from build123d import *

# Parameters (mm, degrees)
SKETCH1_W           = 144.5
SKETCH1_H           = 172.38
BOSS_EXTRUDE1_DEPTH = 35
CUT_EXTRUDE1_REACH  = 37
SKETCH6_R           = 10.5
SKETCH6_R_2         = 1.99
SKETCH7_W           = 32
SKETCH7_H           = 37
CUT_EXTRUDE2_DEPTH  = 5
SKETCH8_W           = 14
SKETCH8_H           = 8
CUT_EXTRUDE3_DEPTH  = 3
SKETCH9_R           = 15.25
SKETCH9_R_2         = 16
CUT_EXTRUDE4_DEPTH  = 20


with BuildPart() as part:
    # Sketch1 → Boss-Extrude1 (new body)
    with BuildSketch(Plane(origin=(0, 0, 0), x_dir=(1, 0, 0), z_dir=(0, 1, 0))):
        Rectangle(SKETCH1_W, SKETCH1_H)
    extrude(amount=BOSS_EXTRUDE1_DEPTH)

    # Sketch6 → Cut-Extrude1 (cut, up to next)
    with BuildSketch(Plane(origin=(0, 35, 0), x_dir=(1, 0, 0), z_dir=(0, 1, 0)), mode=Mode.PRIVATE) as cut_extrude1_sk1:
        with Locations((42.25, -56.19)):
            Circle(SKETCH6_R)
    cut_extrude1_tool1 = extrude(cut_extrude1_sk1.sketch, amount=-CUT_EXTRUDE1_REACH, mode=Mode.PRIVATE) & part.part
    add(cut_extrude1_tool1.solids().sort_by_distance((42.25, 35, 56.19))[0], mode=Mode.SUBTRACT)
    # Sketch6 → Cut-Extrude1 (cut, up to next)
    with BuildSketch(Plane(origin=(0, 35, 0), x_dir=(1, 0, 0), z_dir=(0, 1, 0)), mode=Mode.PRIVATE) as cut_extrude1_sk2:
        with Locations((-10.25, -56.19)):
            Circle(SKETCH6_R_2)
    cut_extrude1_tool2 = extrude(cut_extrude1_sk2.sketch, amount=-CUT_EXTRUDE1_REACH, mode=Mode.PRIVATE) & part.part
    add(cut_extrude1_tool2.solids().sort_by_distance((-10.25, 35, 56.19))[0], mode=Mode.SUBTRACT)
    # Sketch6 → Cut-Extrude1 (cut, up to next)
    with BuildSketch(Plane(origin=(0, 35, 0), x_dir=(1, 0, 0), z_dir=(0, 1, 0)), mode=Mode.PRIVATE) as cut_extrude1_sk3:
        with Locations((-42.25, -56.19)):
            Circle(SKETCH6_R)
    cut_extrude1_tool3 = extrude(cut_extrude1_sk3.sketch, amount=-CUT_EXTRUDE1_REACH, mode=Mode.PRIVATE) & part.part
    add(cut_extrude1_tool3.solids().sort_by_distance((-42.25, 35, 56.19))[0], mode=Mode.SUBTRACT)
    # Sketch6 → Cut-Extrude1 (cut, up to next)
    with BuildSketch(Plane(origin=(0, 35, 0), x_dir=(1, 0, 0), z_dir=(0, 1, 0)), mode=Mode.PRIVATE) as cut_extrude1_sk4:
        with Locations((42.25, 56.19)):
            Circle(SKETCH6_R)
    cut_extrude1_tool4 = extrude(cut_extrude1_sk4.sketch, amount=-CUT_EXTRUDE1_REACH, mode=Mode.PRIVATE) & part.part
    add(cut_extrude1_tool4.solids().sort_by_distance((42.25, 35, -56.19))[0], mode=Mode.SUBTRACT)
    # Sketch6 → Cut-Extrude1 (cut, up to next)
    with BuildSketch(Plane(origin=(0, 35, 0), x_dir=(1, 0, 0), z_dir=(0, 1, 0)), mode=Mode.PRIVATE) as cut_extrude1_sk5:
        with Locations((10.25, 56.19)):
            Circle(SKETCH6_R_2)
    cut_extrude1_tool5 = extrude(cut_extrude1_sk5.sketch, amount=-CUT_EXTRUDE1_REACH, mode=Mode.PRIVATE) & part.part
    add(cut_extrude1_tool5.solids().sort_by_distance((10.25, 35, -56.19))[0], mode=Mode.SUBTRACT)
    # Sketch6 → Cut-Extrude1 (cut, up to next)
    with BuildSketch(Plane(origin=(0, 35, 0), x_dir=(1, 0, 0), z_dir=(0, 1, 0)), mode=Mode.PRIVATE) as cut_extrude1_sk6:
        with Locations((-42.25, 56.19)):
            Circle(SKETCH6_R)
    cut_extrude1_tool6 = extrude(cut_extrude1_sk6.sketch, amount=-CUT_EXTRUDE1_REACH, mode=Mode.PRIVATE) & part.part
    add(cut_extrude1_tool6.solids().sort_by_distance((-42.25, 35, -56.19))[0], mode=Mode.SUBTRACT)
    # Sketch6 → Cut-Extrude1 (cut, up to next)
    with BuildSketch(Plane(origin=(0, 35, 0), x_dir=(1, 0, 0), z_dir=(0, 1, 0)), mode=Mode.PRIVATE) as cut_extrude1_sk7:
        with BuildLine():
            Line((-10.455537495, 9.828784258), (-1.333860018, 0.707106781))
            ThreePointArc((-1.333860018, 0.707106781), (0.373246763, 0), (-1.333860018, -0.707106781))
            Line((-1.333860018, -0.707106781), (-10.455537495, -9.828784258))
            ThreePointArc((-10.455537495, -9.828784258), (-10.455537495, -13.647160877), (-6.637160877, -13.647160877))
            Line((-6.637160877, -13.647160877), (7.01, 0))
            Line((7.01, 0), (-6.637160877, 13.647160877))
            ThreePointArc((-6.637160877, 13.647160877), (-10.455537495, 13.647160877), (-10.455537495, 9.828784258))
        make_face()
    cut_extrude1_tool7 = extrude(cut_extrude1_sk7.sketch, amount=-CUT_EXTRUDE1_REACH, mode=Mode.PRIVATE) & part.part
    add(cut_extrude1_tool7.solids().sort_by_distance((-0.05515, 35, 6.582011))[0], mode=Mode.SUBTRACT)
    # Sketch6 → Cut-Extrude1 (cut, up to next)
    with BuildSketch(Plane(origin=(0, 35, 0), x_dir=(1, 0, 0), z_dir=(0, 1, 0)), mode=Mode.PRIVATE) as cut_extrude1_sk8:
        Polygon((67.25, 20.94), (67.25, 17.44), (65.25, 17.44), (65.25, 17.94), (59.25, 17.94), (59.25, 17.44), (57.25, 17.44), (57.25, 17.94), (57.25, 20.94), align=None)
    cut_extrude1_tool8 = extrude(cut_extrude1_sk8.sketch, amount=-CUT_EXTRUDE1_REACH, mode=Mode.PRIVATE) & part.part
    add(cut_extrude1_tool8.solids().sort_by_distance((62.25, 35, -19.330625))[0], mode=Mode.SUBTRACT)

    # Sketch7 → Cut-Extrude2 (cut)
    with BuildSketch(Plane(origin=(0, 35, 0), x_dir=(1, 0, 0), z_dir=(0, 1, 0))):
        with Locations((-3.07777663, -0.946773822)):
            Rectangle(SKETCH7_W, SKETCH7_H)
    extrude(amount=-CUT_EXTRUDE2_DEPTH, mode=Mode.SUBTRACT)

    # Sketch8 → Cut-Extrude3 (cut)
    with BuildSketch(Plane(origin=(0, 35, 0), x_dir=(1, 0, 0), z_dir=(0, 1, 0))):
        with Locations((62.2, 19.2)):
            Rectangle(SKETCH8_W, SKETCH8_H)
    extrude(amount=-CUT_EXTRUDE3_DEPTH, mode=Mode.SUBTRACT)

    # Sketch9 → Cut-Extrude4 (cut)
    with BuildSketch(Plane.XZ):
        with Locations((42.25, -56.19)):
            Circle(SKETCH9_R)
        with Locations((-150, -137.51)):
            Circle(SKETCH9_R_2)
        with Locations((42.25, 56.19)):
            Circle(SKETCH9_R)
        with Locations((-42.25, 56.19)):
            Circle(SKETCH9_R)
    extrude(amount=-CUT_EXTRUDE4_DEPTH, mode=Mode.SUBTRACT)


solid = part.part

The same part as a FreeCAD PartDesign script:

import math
import FreeCAD as App
import Part
import Sketcher

doc = App.newDocument("Part")
params = doc.addObject("Spreadsheet::Sheet", "Params")
for row, (alias, value) in enumerate([
    ("sketch1_width", "144.5 mm"),
    ("sketch1_height", "172.38 mm"),
    ("pad1_length", "35 mm"),
    ("sketch2_diameter", "21 mm"),
    ("sketch3_diameter", "3.98 mm"),
    ("sketch4_diameter", "21 mm"),
    ("sketch5_diameter", "21 mm"),
    ("sketch6_diameter", "3.98 mm"),
    ("sketch7_diameter", "21 mm"),
    ("sketch8_radius", "1 mm"),
    ("sketch8_radius2", "2.7 mm"),
    ("sketch8_length", "12.9 mm"),
    ("sketch8_length2", "19.3 mm"),
    ("sketch9_width", "10 mm"),
    ("sketch9_width2", "2 mm"),
    ("sketch9_height", "3.5 mm"),
    ("sketch9_height2", "0.5 mm"),
    ("sketch10_width", "32 mm"),
    ("sketch10_height", "37 mm"),
    ("pocket9_length", "5 mm"),
    ("sketch11_width", "14 mm"),
    ("sketch11_height", "8 mm"),
    ("pocket10_length", "3 mm"),
    ("sketch12_diameter", "32 mm"),
    ("sketch12_diameter2", "30.5 mm"),
    ("pocket11_length", "20 mm"),
], start=1):
    params.set(f"A{row}", alias)
    params.set(f"B{row}", "=" + value)
    params.setAlias(f"B{row}", alias)

body = doc.addObject("PartDesign::Body", "Body")

# Sketch on XZ plane
sketch1 = doc.addObject("Sketcher::SketchObject", "Sketch")
body.addObject(sketch1)
sketch1.AttachmentSupport = (doc.XZ_Plane, [""])
sketch1.MapMode = "FlatFace"
sketch1.addGeometry([
    Part.LineSegment(App.Vector(-72.25, -86.19, 0), App.Vector(-72.25, 86.19, 0)),
    Part.LineSegment(App.Vector(-72.25, 86.19, 0), App.Vector(72.25, 86.19, 0)),
    Part.LineSegment(App.Vector(72.25, 86.19, 0), App.Vector(72.25, -86.19, 0)),
    Part.LineSegment(App.Vector(72.25, -86.19, 0), App.Vector(-72.25, -86.19, 0)),
], False)
sketch1.addConstraint([
    Sketcher.Constraint("Coincident", 0, 2, 1, 1),
    Sketcher.Constraint("Coincident", 1, 2, 2, 1),
    Sketcher.Constraint("Coincident", 2, 2, 3, 1),
    Sketcher.Constraint("Coincident", 3, 2, 0, 1),
    Sketcher.Constraint("Vertical", 0),
    Sketcher.Constraint("Horizontal", 1),
    Sketcher.Constraint("Vertical", 2),
    Sketcher.Constraint("Horizontal", 3),
    Sketcher.Constraint("Symmetric", 0, 2, 2, 2, -1, 1),
    Sketcher.Constraint("DistanceX", 1, 1, 1, 2, 144.5),
    Sketcher.Constraint("DistanceY", 0, 1, 0, 2, 172.38),
])
sketch1.setExpression("Constraints[9]", "Params.sketch1_width")
sketch1.setExpression("Constraints[10]", "Params.sketch1_height")
pad1 = doc.addObject("PartDesign::Pad", "Pad")
body.addObject(pad1)
pad1.Profile = sketch1
pad1.setExpression("Length", "Params.pad1_length")
pad1.Reversed = True

# Sketch on XZ plane
sketch2 = doc.addObject("Sketcher::SketchObject", "Sketch001")
body.addObject(sketch2)
sketch2.AttachmentSupport = (doc.XZ_Plane, [""])
sketch2.MapMode = "FlatFace"
sketch2.AttachmentOffset = App.Placement(App.Vector(0, 0, -35), App.Rotation())
sketch2.addGeometry(Part.Circle(App.Vector(42.25, 56.19, 0), App.Vector(0, 0, 1), 10.5), False)
sketch2.addConstraint([
    Sketcher.Constraint("Diameter", 0, 21.0),
    Sketcher.Constraint("DistanceX", -1, 1, 0, 3, 42.25),
    Sketcher.Constraint("DistanceY", -1, 1, 0, 3, 56.19),
])
sketch2.setExpression("Constraints[0]", "Params.sketch2_diameter")
pocket1 = doc.addObject("PartDesign::Pocket", "Pocket")
body.addObject(pocket1)
pocket1.Profile = sketch2
pocket1.Type = "UpToFirst"
pocket1.Reversed = True

# Sketch on XZ plane
sketch3 = doc.addObject("Sketcher::SketchObject", "Sketch002")
body.addObject(sketch3)
sketch3.AttachmentSupport = (doc.XZ_Plane, [""])
sketch3.MapMode = "FlatFace"
sketch3.AttachmentOffset = App.Placement(App.Vector(0, 0, -35), App.Rotation())
sketch3.addGeometry(Part.Circle(App.Vector(-10.25, 56.19, 0), App.Vector(0, 0, 1), 1.99), False)
sketch3.addConstraint([
    Sketcher.Constraint("Diameter", 0, 3.98),
    Sketcher.Constraint("DistanceX", 0, 3, -1, 1, 10.25),
    Sketcher.Constraint("DistanceY", -1, 1, 0, 3, 56.19),
])
sketch3.setExpression("Constraints[0]", "Params.sketch3_diameter")
pocket2 = doc.addObject("PartDesign::Pocket", "Pocket001")
body.addObject(pocket2)
pocket2.Profile = sketch3
pocket2.Type = "UpToFirst"
pocket2.Reversed = True

# Sketch on XZ plane
sketch4 = doc.addObject("Sketcher::SketchObject", "Sketch003")
body.addObject(sketch4)
sketch4.AttachmentSupport = (doc.XZ_Plane, [""])
sketch4.MapMode = "FlatFace"
sketch4.AttachmentOffset = App.Placement(App.Vector(0, 0, -35), App.Rotation())
sketch4.addGeometry(Part.Circle(App.Vector(-42.25, 56.19, 0), App.Vector(0, 0, 1), 10.5), False)
sketch4.addConstraint([
    Sketcher.Constraint("Diameter", 0, 21.0),
    Sketcher.Constraint("DistanceX", 0, 3, -1, 1, 42.25),
    Sketcher.Constraint("DistanceY", -1, 1, 0, 3, 56.19),
])
sketch4.setExpression("Constraints[0]", "Params.sketch4_diameter")
pocket3 = doc.addObject("PartDesign::Pocket", "Pocket002")
body.addObject(pocket3)
pocket3.Profile = sketch4
pocket3.Type = "UpToFirst"
pocket3.Reversed = True

# Sketch on XZ plane
sketch5 = doc.addObject("Sketcher::SketchObject", "Sketch004")
body.addObject(sketch5)
sketch5.AttachmentSupport = (doc.XZ_Plane, [""])
sketch5.MapMode = "FlatFace"
sketch5.AttachmentOffset = App.Placement(App.Vector(0, 0, -35), App.Rotation())
sketch5.addGeometry(Part.Circle(App.Vector(42.25, -56.19, 0), App.Vector(0, 0, 1), 10.5), False)
sketch5.addConstraint([
    Sketcher.Constraint("Diameter", 0, 21.0),
    Sketcher.Constraint("DistanceX", -1, 1, 0, 3, 42.25),
    Sketcher.Constraint("DistanceY", 0, 3, -1, 1, 56.19),
])
sketch5.setExpression("Constraints[0]", "Params.sketch5_diameter")
pocket4 = doc.addObject("PartDesign::Pocket", "Pocket003")
body.addObject(pocket4)
pocket4.Profile = sketch5
pocket4.Type = "UpToFirst"
pocket4.Reversed = True

# Sketch on XZ plane
sketch6 = doc.addObject("Sketcher::SketchObject", "Sketch005")
body.addObject(sketch6)
sketch6.AttachmentSupport = (doc.XZ_Plane, [""])
sketch6.MapMode = "FlatFace"
sketch6.AttachmentOffset = App.Placement(App.Vector(0, 0, -35), App.Rotation())
sketch6.addGeometry(Part.Circle(App.Vector(10.25, -56.19, 0), App.Vector(0, 0, 1), 1.99), False)
sketch6.addConstraint([
    Sketcher.Constraint("Diameter", 0, 3.98),
    Sketcher.Constraint("DistanceX", -1, 1, 0, 3, 10.25),
    Sketcher.Constraint("DistanceY", 0, 3, -1, 1, 56.19),
])
sketch6.setExpression("Constraints[0]", "Params.sketch6_diameter")
pocket5 = doc.addObject("PartDesign::Pocket", "Pocket004")
body.addObject(pocket5)
pocket5.Profile = sketch6
pocket5.Type = "UpToFirst"
pocket5.Reversed = True

# Sketch on XZ plane
sketch7 = doc.addObject("Sketcher::SketchObject", "Sketch006")
body.addObject(sketch7)
sketch7.AttachmentSupport = (doc.XZ_Plane, [""])
sketch7.MapMode = "FlatFace"
sketch7.AttachmentOffset = App.Placement(App.Vector(0, 0, -35), App.Rotation())
sketch7.addGeometry(Part.Circle(App.Vector(-42.25, -56.19, 0), App.Vector(0, 0, 1), 10.5), False)
sketch7.addConstraint([
    Sketcher.Constraint("Diameter", 0, 21.0),
    Sketcher.Constraint("DistanceX", 0, 3, -1, 1, 42.25),
    Sketcher.Constraint("DistanceY", 0, 3, -1, 1, 56.19),
])
sketch7.setExpression("Constraints[0]", "Params.sketch7_diameter")
pocket6 = doc.addObject("PartDesign::Pocket", "Pocket005")
body.addObject(pocket6)
pocket6.Profile = sketch7
pocket6.Type = "UpToFirst"
pocket6.Reversed = True

# Sketch on XZ plane
sketch8 = doc.addObject("Sketcher::SketchObject", "Sketch007")
body.addObject(sketch8)
sketch8.AttachmentSupport = (doc.XZ_Plane, [""])
sketch8.MapMode = "FlatFace"
sketch8.AttachmentOffset = App.Placement(App.Vector(0, 0, -35), App.Rotation())
sketch8.addGeometry([
    Part.LineSegment(App.Vector(-10.455537, -9.828784, 0), App.Vector(-1.33386, -0.707107, 0)),  # 0
    Part.ArcOfCircle(Part.Circle(App.Vector(-0.626753, 0, 0), App.Vector(0, 0, 1), 1), math.radians(-135), math.radians(135)),  # 1
    Part.LineSegment(App.Vector(-1.33386, 0.707107, 0), App.Vector(-10.455537, 9.828784, 0)),  # 2
    Part.ArcOfCircle(Part.Circle(App.Vector(-8.546349, 11.737973, 0), App.Vector(0, 0, 1), 2.7), math.radians(45), math.radians(225)),  # 3
    Part.LineSegment(App.Vector(-6.637161, 13.647161, 0), App.Vector(7.01, 0, 0)),  # 4
    Part.LineSegment(App.Vector(7.01, 0, 0), App.Vector(-6.637161, -13.647161, 0)),  # 5
    Part.ArcOfCircle(Part.Circle(App.Vector(-8.546349, -11.737973, 0), App.Vector(0, 0, 1), 2.7), math.radians(135), math.radians(315)),  # 6
], False)
sketch8.addConstraint([
    Sketcher.Constraint("Coincident", 0, 2, 1, 1),
    Sketcher.Constraint("Coincident", 1, 2, 2, 1),
    Sketcher.Constraint("Tangent", 2, 2, 3, 2),
    Sketcher.Constraint("Tangent", 3, 1, 4, 1),
    Sketcher.Constraint("Coincident", 4, 2, 5, 1),
    Sketcher.Constraint("Tangent", 5, 2, 6, 2),
    Sketcher.Constraint("Tangent", 6, 1, 0, 1),
    Sketcher.Constraint("Equal", 3, 6),
    Sketcher.Constraint("Symmetric", 3, 3, 6, 3, -1),
    Sketcher.Constraint("Symmetric", 0, 2, 1, 2, -1),
    Sketcher.Constraint("PointOnObject", 4, 2, -1),
    Sketcher.Constraint("Perpendicular", 0, 2),
    Sketcher.Constraint("Parallel", 2, 4),
    Sketcher.Constraint("Radius", 1, 1.0),
    Sketcher.Constraint("Radius", 3, 2.7),
    Sketcher.Constraint("Distance", 0, 12.9),
    Sketcher.Constraint("Distance", 4, 19.3),
    Sketcher.Constraint("DistanceX", -1, 1, 4, 2, 7.01),
])
sketch8.setExpression("Constraints[13]", "Params.sketch8_radius")
sketch8.setExpression("Constraints[14]", "Params.sketch8_radius2")
sketch8.setExpression("Constraints[15]", "Params.sketch8_length")
sketch8.setExpression("Constraints[16]", "Params.sketch8_length2")
pocket7 = doc.addObject("PartDesign::Pocket", "Pocket006")
body.addObject(pocket7)
pocket7.Profile = sketch8
pocket7.Type = "UpToFirst"
pocket7.Reversed = True

# Sketch on XZ plane
sketch9 = doc.addObject("Sketcher::SketchObject", "Sketch008")
body.addObject(sketch9)
sketch9.AttachmentSupport = (doc.XZ_Plane, [""])
sketch9.MapMode = "FlatFace"
sketch9.AttachmentOffset = App.Placement(App.Vector(0, 0, -35), App.Rotation())
sketch9.addGeometry([
    Part.LineSegment(App.Vector(67.25, -17.44, 0), App.Vector(67.25, -20.94, 0)),  # 0
    Part.LineSegment(App.Vector(67.25, -20.94, 0), App.Vector(57.25, -20.94, 0)),  # 1
    Part.LineSegment(App.Vector(57.25, -20.94, 0), App.Vector(57.25, -17.44, 0)),  # 2
    Part.LineSegment(App.Vector(57.25, -17.44, 0), App.Vector(59.25, -17.44, 0)),  # 3
    Part.LineSegment(App.Vector(59.25, -17.44, 0), App.Vector(59.25, -17.94, 0)),  # 4
    Part.LineSegment(App.Vector(59.25, -17.94, 0), App.Vector(65.25, -17.94, 0)),  # 5
    Part.LineSegment(App.Vector(65.25, -17.94, 0), App.Vector(65.25, -17.44, 0)),  # 6
    Part.LineSegment(App.Vector(65.25, -17.44, 0), App.Vector(67.25, -17.44, 0)),  # 7
], False)
sketch9.addConstraint([
    Sketcher.Constraint("Coincident", 0, 2, 1, 1),
    Sketcher.Constraint("Coincident", 1, 2, 2, 1),
    Sketcher.Constraint("Coincident", 2, 2, 3, 1),
    Sketcher.Constraint("Coincident", 3, 2, 4, 1),
    Sketcher.Constraint("Coincident", 4, 2, 5, 1),
    Sketcher.Constraint("Coincident", 5, 2, 6, 1),
    Sketcher.Constraint("Coincident", 6, 2, 7, 1),
    Sketcher.Constraint("Coincident", 7, 2, 0, 1),
    Sketcher.Constraint("Vertical", 0),
    Sketcher.Constraint("Horizontal", 1),
    Sketcher.Constraint("Vertical", 2),
    Sketcher.Constraint("Horizontal", 3),
    Sketcher.Constraint("Vertical", 4),
    Sketcher.Constraint("Horizontal", 5),
    Sketcher.Constraint("Vertical", 6),
    Sketcher.Constraint("Horizontal", 7),
    Sketcher.Constraint("Horizontal", 3, 2, 6, 2),
    Sketcher.Constraint("Equal", 3, 7),
    Sketcher.Constraint("DistanceX", 1, 2, 1, 1, 10.0),
    Sketcher.Constraint("DistanceX", 3, 1, 3, 2, 2.0),
    Sketcher.Constraint("DistanceY", 0, 2, 0, 1, 3.5),
    Sketcher.Constraint("DistanceY", 4, 2, 4, 1, 0.5),
    Sketcher.Constraint("DistanceX", -1, 1, 0, 2, 67.25),
    Sketcher.Constraint("DistanceY", 0, 2, -1, 1, 20.94),
])
sketch9.setExpression("Constraints[18]", "Params.sketch9_width")
sketch9.setExpression("Constraints[19]", "Params.sketch9_width2")
sketch9.setExpression("Constraints[20]", "Params.sketch9_height")
sketch9.setExpression("Constraints[21]", "Params.sketch9_height2")
pocket8 = doc.addObject("PartDesign::Pocket", "Pocket007")
body.addObject(pocket8)
pocket8.Profile = sketch9
pocket8.Type = "UpToFirst"
pocket8.Reversed = True

# Sketch on XZ plane
sketch10 = doc.addObject("Sketcher::SketchObject", "Sketch009")
body.addObject(sketch10)
sketch10.AttachmentSupport = (doc.XZ_Plane, [""])
sketch10.MapMode = "FlatFace"
sketch10.AttachmentOffset = App.Placement(App.Vector(0, 0, -35), App.Rotation())
sketch10.addGeometry([
    Part.LineSegment(App.Vector(-19.077777, -17.553226, 0), App.Vector(-19.077777, 19.446774, 0)),
    Part.LineSegment(App.Vector(-19.077777, 19.446774, 0), App.Vector(12.922223, 19.446774, 0)),
    Part.LineSegment(App.Vector(12.922223, 19.446774, 0), App.Vector(12.922223, -17.553226, 0)),
    Part.LineSegment(App.Vector(12.922223, -17.553226, 0), App.Vector(-19.077777, -17.553226, 0)),
], False)
sketch10.addConstraint([
    Sketcher.Constraint("Coincident", 0, 2, 1, 1),
    Sketcher.Constraint("Coincident", 1, 2, 2, 1),
    Sketcher.Constraint("Coincident", 2, 2, 3, 1),
    Sketcher.Constraint("Coincident", 3, 2, 0, 1),
    Sketcher.Constraint("Vertical", 0),
    Sketcher.Constraint("Horizontal", 1),
    Sketcher.Constraint("Vertical", 2),
    Sketcher.Constraint("Horizontal", 3),
    Sketcher.Constraint("DistanceX", 1, 1, 1, 2, 32.0),
    Sketcher.Constraint("DistanceY", 0, 1, 0, 2, 37.0),
    Sketcher.Constraint("DistanceX", 0, 2, -1, 1, 19.077777),
    Sketcher.Constraint("DistanceY", -1, 1, 0, 2, 19.446774),
])
sketch10.setExpression("Constraints[8]", "Params.sketch10_width")
sketch10.setExpression("Constraints[9]", "Params.sketch10_height")
pocket9 = doc.addObject("PartDesign::Pocket", "Pocket008")
body.addObject(pocket9)
pocket9.Profile = sketch10
pocket9.setExpression("Length", "Params.pocket9_length")
pocket9.Reversed = True

# Sketch on XZ plane
sketch11 = doc.addObject("Sketcher::SketchObject", "Sketch010")
body.addObject(sketch11)
sketch11.AttachmentSupport = (doc.XZ_Plane, [""])
sketch11.MapMode = "FlatFace"
sketch11.AttachmentOffset = App.Placement(App.Vector(0, 0, -35), App.Rotation())
sketch11.addGeometry([
    Part.LineSegment(App.Vector(55.2, -23.2, 0), App.Vector(55.2, -15.2, 0)),
    Part.LineSegment(App.Vector(55.2, -15.2, 0), App.Vector(69.2, -15.2, 0)),
    Part.LineSegment(App.Vector(69.2, -15.2, 0), App.Vector(69.2, -23.2, 0)),
    Part.LineSegment(App.Vector(69.2, -23.2, 0), App.Vector(55.2, -23.2, 0)),
], False)
sketch11.addConstraint([
    Sketcher.Constraint("Coincident", 0, 2, 1, 1),
    Sketcher.Constraint("Coincident", 1, 2, 2, 1),
    Sketcher.Constraint("Coincident", 2, 2, 3, 1),
    Sketcher.Constraint("Coincident", 3, 2, 0, 1),
    Sketcher.Constraint("Vertical", 0),
    Sketcher.Constraint("Horizontal", 1),
    Sketcher.Constraint("Vertical", 2),
    Sketcher.Constraint("Horizontal", 3),
    Sketcher.Constraint("DistanceX", 1, 1, 1, 2, 14.0),
    Sketcher.Constraint("DistanceY", 0, 1, 0, 2, 8.0),
    Sketcher.Constraint("DistanceX", -1, 1, 0, 2, 55.2),
    Sketcher.Constraint("DistanceY", 0, 2, -1, 1, 15.2),
])
sketch11.setExpression("Constraints[8]", "Params.sketch11_width")
sketch11.setExpression("Constraints[9]", "Params.sketch11_height")
pocket10 = doc.addObject("PartDesign::Pocket", "Pocket009")
body.addObject(pocket10)
pocket10.Profile = sketch11
pocket10.setExpression("Length", "Params.pocket10_length")
pocket10.Reversed = True

# Sketch on XZ plane
sketch12 = doc.addObject("Sketcher::SketchObject", "Sketch011")
body.addObject(sketch12)
sketch12.AttachmentSupport = (doc.XZ_Plane, [""])
sketch12.MapMode = "FlatFace"
sketch12.addGeometry([
    Part.Circle(App.Vector(42.25, -56.19, 0), App.Vector(0, 0, 1), 15.25),
    Part.Circle(App.Vector(-150, -137.51, 0), App.Vector(0, 0, 1), 16),
    Part.Circle(App.Vector(42.25, 56.19, 0), App.Vector(0, 0, 1), 15.25),
    Part.Circle(App.Vector(-42.25, 56.19, 0), App.Vector(0, 0, 1), 15.25),
], False)
sketch12.addConstraint([
    Sketcher.Constraint("Equal", 0, 2),
    Sketcher.Constraint("Equal", 2, 3),
    Sketcher.Constraint("Symmetric", 0, 3, 3, 3, -1, 1),
    Sketcher.Constraint("Symmetric", 2, 3, 3, 3, -2),
    Sketcher.Constraint("Diameter", 1, 32.0),
    Sketcher.Constraint("Diameter", 0, 30.5),
    Sketcher.Constraint("DistanceX", 1, 3, -1, 1, 150.0),
    Sketcher.Constraint("DistanceY", 1, 3, 2, 3, 193.7),
    Sketcher.Constraint("DistanceX", 3, 3, 2, 3, 84.5),
    Sketcher.Constraint("DistanceY", 0, 3, -1, 1, 56.19),
])
sketch12.setExpression("Constraints[4]", "Params.sketch12_diameter")
sketch12.setExpression("Constraints[5]", "Params.sketch12_diameter2")
pocket11 = doc.addObject("PartDesign::Pocket", "Pocket010")
body.addObject(pocket11)
pocket11.Profile = sketch12
pocket11.setExpression("Length", "Params.pocket11_length")

doc.recompute()
